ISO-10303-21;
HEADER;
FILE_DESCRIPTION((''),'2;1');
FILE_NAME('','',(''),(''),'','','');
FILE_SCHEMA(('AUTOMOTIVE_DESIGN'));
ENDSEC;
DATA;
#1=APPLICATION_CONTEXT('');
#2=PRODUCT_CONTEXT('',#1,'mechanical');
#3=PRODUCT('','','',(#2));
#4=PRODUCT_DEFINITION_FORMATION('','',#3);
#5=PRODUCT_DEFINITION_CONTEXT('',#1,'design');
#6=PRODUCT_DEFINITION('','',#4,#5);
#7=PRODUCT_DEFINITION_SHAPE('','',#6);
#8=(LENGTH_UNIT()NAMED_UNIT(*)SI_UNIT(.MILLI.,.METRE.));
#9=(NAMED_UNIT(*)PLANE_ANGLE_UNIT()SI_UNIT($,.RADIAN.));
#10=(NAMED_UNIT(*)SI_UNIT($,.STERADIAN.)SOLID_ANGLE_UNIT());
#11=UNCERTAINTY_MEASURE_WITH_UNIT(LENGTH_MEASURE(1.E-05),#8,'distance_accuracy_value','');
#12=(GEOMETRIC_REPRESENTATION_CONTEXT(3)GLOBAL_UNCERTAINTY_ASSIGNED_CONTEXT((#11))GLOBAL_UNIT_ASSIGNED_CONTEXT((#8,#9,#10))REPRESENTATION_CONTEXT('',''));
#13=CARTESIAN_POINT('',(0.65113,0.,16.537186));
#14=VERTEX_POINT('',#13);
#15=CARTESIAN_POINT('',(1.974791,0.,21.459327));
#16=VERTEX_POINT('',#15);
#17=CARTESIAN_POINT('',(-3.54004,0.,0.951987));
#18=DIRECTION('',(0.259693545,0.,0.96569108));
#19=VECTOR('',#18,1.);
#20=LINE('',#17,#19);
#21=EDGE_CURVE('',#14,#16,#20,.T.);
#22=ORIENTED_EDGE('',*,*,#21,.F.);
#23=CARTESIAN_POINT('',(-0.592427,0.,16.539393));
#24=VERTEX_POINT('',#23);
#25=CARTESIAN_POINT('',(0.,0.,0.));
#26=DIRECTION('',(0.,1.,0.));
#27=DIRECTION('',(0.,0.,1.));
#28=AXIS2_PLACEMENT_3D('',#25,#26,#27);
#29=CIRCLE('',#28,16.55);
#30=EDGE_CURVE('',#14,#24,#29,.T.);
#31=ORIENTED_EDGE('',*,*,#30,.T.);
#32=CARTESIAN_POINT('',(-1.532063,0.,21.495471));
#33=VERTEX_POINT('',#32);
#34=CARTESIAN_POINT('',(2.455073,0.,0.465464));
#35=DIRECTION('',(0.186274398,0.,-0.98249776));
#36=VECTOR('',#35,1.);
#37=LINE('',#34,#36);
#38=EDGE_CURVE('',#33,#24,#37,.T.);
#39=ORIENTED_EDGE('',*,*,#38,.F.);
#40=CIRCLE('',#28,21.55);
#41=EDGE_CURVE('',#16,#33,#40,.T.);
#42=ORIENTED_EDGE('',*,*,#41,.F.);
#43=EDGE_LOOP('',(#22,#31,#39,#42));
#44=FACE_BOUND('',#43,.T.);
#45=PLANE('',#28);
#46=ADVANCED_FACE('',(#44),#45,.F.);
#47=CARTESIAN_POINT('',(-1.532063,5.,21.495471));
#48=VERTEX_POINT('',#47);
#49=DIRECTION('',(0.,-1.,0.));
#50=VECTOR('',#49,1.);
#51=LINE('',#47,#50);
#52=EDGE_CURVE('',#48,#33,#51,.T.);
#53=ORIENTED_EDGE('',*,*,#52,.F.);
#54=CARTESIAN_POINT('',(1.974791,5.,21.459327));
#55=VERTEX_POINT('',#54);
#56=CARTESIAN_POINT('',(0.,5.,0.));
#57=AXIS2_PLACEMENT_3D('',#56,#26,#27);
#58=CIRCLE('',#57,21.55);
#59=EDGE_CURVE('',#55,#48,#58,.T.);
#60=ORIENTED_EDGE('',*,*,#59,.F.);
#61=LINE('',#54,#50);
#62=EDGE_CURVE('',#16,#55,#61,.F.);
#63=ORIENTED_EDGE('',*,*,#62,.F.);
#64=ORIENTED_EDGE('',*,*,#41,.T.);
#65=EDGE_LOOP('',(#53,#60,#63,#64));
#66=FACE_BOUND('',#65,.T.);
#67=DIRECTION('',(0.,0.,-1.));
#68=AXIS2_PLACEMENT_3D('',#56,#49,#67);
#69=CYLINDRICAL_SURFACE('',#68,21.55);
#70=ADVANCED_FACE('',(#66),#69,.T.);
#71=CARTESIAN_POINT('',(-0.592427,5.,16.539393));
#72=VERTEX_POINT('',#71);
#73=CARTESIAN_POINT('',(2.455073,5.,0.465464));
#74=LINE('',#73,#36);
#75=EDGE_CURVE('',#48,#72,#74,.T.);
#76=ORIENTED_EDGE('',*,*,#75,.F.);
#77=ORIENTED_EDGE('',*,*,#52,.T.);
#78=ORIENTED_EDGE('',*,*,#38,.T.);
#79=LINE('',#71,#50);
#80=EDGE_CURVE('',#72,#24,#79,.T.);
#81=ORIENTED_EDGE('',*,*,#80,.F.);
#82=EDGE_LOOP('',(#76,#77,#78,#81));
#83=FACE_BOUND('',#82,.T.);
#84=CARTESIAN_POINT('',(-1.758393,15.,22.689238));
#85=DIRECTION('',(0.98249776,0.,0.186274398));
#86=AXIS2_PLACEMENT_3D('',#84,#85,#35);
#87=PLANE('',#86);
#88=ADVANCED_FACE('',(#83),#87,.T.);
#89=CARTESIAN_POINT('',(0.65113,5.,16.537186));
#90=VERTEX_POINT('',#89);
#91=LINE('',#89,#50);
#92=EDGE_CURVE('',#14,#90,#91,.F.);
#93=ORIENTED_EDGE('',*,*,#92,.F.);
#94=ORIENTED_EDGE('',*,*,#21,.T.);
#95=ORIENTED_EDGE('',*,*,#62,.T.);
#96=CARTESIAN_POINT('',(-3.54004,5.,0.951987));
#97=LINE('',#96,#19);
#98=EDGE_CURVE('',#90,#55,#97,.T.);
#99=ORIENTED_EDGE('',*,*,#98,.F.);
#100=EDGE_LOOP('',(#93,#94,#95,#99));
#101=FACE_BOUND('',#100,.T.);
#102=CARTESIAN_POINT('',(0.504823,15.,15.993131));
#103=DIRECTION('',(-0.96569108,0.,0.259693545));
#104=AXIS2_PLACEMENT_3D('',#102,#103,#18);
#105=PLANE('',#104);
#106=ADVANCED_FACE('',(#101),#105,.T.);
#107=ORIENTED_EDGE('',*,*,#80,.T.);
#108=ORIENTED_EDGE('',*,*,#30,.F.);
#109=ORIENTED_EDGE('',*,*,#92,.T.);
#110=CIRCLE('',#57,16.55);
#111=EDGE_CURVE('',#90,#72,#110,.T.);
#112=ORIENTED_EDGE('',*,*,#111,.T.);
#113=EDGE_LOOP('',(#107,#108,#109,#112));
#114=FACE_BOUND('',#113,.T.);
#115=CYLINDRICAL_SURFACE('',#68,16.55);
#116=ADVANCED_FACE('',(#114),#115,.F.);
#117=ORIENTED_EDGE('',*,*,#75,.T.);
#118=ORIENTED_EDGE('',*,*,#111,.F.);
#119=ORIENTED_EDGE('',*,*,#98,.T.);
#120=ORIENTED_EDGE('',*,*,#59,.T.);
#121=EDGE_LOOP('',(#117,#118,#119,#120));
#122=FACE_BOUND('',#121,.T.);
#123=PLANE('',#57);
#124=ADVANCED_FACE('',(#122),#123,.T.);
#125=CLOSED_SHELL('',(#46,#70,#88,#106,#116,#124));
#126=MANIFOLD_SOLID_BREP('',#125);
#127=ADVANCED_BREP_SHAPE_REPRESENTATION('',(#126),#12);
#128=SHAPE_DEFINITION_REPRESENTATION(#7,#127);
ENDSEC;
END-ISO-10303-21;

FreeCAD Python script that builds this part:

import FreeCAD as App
import Part
import Sketcher
Q = App.Units.Quantity


def add_polygon(sketch, points):
    """Adds a closed chain of lines whose ends are joined by coincident constraints."""
    first, n = sketch.GeometryCount, len(points)
    for a, b in zip(points, points[1:] + points[:1]):
        sketch.addGeometry(Part.LineSegment(App.Vector(*a, 0), App.Vector(*b, 0)), False)
    for i in range(n):
        sketch.addConstraint(Sketcher.Constraint("Coincident", first + i, 2, first + (i + 1) % n, 1))

doc = App.newDocument("Part")
body = doc.addObject("PartDesign::Body", "Body")

# Sketch on XZ plane
sketch1 = body.newObject("Sketcher::SketchObject", "Sketch")
sketch1.AttachmentSupport = (doc.getObject("XZ_Plane"), [""])
sketch1.MapMode = "FlatFace"
sketch1.addGeometry([
    Part.Circle(App.Vector(0, 0, 0), App.Vector(0, 0, 1), 22),
    Part.Circle(App.Vector(0, 0, 0), App.Vector(0, 0, 1), 17),
], False)
sketch1.addConstraint([
    Sketcher.Constraint("Coincident", 0, 3, -1, 1),
    Sketcher.Constraint("Coincident", 1, 3, -1, 1),
    Sketcher.Constraint("Diameter", 0, Q("43.1 mm")),
    Sketcher.Constraint("Diameter", 1, Q("33.1 mm")),
])
pad1 = body.newObject("PartDesign::Pad", "Pad")
pad1.Profile = sketch1
pad1.Length = 5
pad1.Reversed = True

# Sketch on XZ plane
sketch2 = body.newObject("Sketcher::SketchObject", "Sketch001")
sketch2.AttachmentSupport = (doc.getObject("XZ_Plane"), [""])
sketch2.MapMode = "FlatFace"
add_polygon(sketch2, [(-1.8, 22.7), (2.3, 22.7), (0.5, 16), (-0.5, 16)])  # lines 0-3
sketch2.addConstraint([
    Sketcher.Constraint("Horizontal", 0),
    Sketcher.Constraint("Horizontal", 2),
    Sketcher.Constraint("DistanceX", 0, 1, 0, 2, Q("4.063932 mm")),
    Sketcher.Constraint("DistanceX", 2, 2, 0, 2, Q("2.794399 mm")),
    Sketcher.Constraint("Distance", 3, Q("6.815391 mm")),
    Sketcher.Constraint("DistanceX", 2, 2, 2, 1, Q("0.993682 mm")),
    Sketcher.Constraint("DistanceX", -1, 1, 0, 2, Q("2.305539 mm")),
    Sketcher.Constraint("DistanceY", -1, 1, 1, 2, Q("15.993131 mm")),
])
pocket1 = body.newObject("PartDesign::Pocket", "Pocket")
pocket1.Profile = sketch2
pocket1.Type = "ThroughAll"
pocket1.Midplane = True

doc.recompute()
